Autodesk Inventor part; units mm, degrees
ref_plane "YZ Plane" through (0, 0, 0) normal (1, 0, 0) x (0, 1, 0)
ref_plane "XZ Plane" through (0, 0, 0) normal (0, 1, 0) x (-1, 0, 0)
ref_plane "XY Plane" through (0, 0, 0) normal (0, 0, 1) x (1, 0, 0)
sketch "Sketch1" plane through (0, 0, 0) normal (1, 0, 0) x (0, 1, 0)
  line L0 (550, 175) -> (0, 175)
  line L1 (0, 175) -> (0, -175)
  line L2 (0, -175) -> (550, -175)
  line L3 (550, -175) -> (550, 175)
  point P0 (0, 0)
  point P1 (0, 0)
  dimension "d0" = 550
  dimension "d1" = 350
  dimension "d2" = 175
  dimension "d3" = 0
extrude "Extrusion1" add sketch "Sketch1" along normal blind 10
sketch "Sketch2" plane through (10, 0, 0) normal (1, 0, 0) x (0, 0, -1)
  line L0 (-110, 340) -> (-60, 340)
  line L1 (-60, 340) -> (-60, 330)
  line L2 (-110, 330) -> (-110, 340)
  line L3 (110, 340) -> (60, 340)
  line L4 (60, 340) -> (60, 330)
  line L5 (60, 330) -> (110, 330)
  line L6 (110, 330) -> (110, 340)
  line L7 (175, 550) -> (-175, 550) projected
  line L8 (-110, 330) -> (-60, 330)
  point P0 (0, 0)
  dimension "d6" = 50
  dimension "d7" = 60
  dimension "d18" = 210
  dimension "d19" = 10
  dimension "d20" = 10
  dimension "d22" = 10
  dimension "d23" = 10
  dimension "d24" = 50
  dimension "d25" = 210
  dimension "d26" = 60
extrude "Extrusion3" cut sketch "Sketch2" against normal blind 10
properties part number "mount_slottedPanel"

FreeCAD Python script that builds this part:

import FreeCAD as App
import Part
import Sketcher

V = App.Vector


def add_polygon(sketch, points):
    """Adds a closed chain of lines whose ends are joined by coincident constraints."""
    first, n = sketch.GeometryCount, len(points)
    for a, b in zip(points, points[1:] + points[:1]):
        sketch.addGeometry(Part.LineSegment(App.Vector(*a, 0), App.Vector(*b, 0)), False)
    for i in range(n):
        sketch.addConstraint(Sketcher.Constraint("Coincident", first + i, 2, first + (i + 1) % n, 1))

doc = App.newDocument("Part")
body = doc.addObject("PartDesign::Body", "Body")

# Sketch on YZ plane
sketch1 = doc.addObject("Sketcher::SketchObject", "Sketch")
body.addObject(sketch1)
sketch1.AttachmentSupport = (doc.YZ_Plane, [""])
sketch1.MapMode = "FlatFace"
add_polygon(sketch1, [(550, -175), (550, 175), (0, 175), (0, -175)])  # lines 0-3
sketch1.addConstraint([
    Sketcher.Constraint("Vertical", 0),
    Sketcher.Constraint("Horizontal", 1),
    Sketcher.Constraint("Vertical", 2),
    Sketcher.Constraint("Horizontal", 3),
    Sketcher.Constraint("Symmetric", 1, 2, 2, 2, -1, 1),
    Sketcher.Constraint("DistanceX", 1, 2, 1, 1, 550.0),
    Sketcher.Constraint("DistanceY", 0, 1, 0, 2, 350.0),
])
pad1 = doc.addObject("PartDesign::Pad", "Pad")
body.addObject(pad1)
pad1.Profile = sketch1
pad1.Length = 10

# Sketch on YZ plane
sketch2 = doc.addObject("Sketcher::SketchObject", "Sketch001")
body.addObject(sketch2)
sketch2.AttachmentSupport = (doc.YZ_Plane, [""])
sketch2.MapMode = "FlatFace"
sketch2.AttachmentOffset = App.Placement(V(0, 0, 10), App.Rotation())
add_polygon(sketch2, [(340, 60), (340, 110), (330, 110), (330, 60)])  # lines 0-3
add_polygon(sketch2, [(330, -110), (340, -110), (340, -60), (330, -60)])  # lines 4-7
sketch2.addConstraint([
    Sketcher.Constraint("Vertical", 0),
    Sketcher.Constraint("Horizontal", 1),
    Sketcher.Constraint("Vertical", 2),
    Sketcher.Constraint("Horizontal", 3),
    Sketcher.Constraint("Horizontal", 4),
    Sketcher.Constraint("Vertical", 5),
    Sketcher.Constraint("Horizontal", 6),
    Sketcher.Constraint("Vertical", 7),
    Sketcher.Constraint("Symmetric", 0, 2, 4, 2, -1),
    Sketcher.Constraint("Symmetric", 2, 2, 6, 2, -1),
    Sketcher.Constraint("DistanceX", 1, 2, 1, 1, 10.0),
    Sketcher.Constraint("DistanceY", 0, 1, 0, 2, 50.0),
    Sketcher.Constraint("DistanceY", -1, 1, 2, 2, 60.0),
    Sketcher.Constraint("DistanceX", -1, 1, 0, 2, 340.0),
])
pocket1 = doc.addObject("PartDesign::Pocket", "Pocket")
body.addObject(pocket1)
pocket1.Profile = sketch2
pocket1.Length = 10

doc.recompute()
